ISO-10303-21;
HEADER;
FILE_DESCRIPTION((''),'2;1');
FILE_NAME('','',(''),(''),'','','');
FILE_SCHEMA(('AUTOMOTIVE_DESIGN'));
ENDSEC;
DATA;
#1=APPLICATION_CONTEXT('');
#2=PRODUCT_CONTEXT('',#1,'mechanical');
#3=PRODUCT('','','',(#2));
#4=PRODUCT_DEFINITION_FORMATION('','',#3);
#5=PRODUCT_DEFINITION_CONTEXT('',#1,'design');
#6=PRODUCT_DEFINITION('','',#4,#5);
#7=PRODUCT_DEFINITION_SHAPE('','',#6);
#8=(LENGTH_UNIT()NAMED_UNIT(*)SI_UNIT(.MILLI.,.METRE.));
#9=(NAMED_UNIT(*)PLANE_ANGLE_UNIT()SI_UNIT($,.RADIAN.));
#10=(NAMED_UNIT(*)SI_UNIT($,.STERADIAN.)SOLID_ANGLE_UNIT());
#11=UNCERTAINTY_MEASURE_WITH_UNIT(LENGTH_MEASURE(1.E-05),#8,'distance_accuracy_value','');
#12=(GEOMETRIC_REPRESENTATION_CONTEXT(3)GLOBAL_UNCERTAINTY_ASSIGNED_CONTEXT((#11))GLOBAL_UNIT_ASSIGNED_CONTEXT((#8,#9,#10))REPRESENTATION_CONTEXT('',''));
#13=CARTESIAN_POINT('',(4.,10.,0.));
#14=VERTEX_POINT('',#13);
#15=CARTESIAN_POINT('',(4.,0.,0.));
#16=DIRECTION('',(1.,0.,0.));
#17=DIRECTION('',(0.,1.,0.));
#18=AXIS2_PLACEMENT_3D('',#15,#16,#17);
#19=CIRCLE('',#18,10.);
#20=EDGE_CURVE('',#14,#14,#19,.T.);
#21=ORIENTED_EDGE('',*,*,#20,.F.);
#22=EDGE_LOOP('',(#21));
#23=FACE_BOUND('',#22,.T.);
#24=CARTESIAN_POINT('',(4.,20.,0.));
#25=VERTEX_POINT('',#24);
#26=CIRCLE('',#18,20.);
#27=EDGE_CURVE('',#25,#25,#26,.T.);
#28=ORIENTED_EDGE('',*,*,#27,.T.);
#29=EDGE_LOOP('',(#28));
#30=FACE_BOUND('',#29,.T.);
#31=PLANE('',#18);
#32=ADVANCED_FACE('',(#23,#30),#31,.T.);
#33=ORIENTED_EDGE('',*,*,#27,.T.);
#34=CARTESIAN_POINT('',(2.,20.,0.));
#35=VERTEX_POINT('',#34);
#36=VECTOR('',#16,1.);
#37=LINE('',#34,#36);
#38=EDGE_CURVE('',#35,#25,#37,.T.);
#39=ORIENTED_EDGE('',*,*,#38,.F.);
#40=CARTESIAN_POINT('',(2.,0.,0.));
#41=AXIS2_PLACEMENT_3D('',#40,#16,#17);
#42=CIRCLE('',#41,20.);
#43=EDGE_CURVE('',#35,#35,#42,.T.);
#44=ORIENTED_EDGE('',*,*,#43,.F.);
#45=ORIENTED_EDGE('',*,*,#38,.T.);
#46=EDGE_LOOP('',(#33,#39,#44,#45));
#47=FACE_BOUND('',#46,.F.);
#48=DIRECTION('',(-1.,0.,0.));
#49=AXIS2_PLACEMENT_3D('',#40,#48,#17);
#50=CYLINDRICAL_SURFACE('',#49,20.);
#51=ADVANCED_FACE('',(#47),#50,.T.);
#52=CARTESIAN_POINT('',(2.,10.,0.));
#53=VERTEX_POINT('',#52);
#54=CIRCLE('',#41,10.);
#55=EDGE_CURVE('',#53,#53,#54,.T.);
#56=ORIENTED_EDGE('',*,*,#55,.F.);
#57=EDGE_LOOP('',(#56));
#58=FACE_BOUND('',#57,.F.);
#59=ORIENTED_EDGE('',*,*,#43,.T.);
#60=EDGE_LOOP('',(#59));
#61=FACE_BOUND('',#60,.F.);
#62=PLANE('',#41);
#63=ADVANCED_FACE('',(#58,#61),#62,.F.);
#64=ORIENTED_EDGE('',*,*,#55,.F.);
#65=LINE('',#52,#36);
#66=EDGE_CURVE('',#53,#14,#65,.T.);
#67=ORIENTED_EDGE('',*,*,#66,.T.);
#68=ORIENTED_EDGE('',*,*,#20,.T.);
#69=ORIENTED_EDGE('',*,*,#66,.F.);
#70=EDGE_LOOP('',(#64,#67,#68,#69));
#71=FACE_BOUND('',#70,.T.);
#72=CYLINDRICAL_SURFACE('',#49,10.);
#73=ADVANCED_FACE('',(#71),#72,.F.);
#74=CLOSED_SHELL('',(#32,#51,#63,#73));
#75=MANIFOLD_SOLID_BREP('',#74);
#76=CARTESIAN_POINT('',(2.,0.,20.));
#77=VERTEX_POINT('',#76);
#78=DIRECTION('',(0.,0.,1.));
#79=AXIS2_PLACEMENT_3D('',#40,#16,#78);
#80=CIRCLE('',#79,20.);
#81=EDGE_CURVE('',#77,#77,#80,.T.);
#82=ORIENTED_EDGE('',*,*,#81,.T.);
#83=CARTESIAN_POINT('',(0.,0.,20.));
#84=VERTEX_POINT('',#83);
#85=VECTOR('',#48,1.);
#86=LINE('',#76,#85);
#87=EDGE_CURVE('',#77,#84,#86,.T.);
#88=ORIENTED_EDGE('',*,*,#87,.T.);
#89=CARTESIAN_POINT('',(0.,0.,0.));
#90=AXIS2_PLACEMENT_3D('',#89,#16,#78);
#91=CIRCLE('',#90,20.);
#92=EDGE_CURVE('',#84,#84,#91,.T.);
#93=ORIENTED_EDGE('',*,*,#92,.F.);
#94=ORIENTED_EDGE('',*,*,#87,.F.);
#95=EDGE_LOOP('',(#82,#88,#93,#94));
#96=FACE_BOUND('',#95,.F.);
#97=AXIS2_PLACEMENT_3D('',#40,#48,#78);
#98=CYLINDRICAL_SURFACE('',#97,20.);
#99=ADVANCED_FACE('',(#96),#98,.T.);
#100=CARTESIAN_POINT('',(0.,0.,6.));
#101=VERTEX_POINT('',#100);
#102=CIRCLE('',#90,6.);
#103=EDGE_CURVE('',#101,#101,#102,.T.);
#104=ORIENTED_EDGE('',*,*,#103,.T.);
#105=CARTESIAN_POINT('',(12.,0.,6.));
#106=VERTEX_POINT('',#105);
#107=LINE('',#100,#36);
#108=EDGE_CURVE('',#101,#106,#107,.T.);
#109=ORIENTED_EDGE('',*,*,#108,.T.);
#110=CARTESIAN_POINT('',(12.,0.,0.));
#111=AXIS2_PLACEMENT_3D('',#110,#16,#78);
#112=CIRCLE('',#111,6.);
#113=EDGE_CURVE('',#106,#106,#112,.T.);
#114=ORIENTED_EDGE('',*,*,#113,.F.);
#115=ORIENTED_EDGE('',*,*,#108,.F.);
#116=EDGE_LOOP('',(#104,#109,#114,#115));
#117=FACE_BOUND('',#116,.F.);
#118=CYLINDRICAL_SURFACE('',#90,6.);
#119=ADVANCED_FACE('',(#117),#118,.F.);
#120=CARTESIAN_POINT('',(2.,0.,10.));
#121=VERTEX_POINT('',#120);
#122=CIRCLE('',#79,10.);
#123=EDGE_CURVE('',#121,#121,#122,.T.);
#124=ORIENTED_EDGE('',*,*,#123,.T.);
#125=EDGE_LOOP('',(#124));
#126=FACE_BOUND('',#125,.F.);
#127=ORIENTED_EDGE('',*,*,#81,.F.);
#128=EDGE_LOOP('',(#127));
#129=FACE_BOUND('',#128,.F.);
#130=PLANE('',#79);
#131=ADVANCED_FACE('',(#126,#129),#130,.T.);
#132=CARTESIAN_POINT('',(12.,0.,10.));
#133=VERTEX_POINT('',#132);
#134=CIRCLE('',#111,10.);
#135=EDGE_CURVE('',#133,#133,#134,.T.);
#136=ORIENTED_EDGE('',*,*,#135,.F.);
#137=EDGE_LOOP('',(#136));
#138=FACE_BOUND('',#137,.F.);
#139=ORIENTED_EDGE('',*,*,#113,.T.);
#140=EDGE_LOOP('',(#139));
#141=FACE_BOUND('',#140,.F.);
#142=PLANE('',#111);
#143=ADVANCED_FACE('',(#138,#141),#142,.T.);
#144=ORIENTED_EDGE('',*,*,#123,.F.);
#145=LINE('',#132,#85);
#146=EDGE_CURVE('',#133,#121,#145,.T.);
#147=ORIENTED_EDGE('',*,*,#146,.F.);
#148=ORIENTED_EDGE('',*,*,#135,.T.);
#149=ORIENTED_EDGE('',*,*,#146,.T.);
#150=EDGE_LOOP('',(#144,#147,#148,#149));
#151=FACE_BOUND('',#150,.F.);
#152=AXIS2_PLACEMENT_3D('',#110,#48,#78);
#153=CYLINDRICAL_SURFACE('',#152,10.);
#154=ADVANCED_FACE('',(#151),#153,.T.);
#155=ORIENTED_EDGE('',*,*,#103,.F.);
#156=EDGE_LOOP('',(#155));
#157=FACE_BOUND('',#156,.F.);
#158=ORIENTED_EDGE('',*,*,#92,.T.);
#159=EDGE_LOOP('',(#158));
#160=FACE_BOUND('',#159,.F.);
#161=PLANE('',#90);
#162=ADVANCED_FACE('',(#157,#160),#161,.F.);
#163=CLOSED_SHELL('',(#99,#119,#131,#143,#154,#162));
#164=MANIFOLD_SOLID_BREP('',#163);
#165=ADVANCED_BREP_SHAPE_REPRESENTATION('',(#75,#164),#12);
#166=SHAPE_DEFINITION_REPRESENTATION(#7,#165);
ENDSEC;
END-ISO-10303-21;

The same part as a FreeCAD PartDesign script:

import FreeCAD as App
import Part
import Sketcher

V = App.Vector
Q = App.Units.Quantity

doc = App.newDocument("Part")
body = doc.addObject("PartDesign::Body", "Body")

sketch1 = body.newObject("Sketcher::SketchObject", "Sketch")
sketch1.AttachmentSupport = (doc.getObject("XZ_Plane"), [""])
sketch1.MapMode = "FlatFace"
sketch1.addGeometry([
    Part.LineSegment(V(0, 20, 0), V(0, 6, 0)),
    Part.LineSegment(V(0, 6, 0), V(12, 6, 0)),
    Part.LineSegment(V(12, 6, 0), V(12, 10, 0)),
    Part.LineSegment(V(12, 10, 0), V(2, 10, 0)),
    Part.LineSegment(V(2, 10, 0), V(2, 20, 0)),
    Part.LineSegment(V(2, 20, 0), V(0, 20, 0)),
], False)
sketch1.addConstraint([
    Sketcher.Constraint("Coincident", 0, 2, 1, 1),
    Sketcher.Constraint("Coincident", 1, 2, 2, 1),
    Sketcher.Constraint("Coincident", 2, 2, 3, 1),
    Sketcher.Constraint("Coincident", 3, 2, 4, 1),
    Sketcher.Constraint("Coincident", 4, 2, 5, 1),
    Sketcher.Constraint("Coincident", 5, 2, 0, 1),
    Sketcher.Constraint("Vertical", 0),
    Sketcher.Constraint("Horizontal", 1),
    Sketcher.Constraint("Vertical", 2),
    Sketcher.Constraint("Horizontal", 3),
    Sketcher.Constraint("Vertical", 4),
    Sketcher.Constraint("Horizontal", 5),
    Sketcher.Constraint("PointOnObject", 0, 2, -2),
    Sketcher.Constraint("Equal", 3, 4),
    Sketcher.Constraint("DistanceX", 1, 1, 1, 2, Q("12 mm")),
    Sketcher.Constraint("DistanceX", 3, 2, 3, 1, Q("10 mm")),
    Sketcher.Constraint("DistanceY", 0, 2, 0, 1, Q("14 mm")),
    Sketcher.Constraint("DistanceY", -1, 1, 0, 2, Q("6 mm")),
])
revolution = body.newObject("PartDesign::Revolution", "Revolution")
revolution.Profile = sketch1
revolution.ReferenceAxis = (sketch1, ["H_Axis"])
revolution.Angle = 360
body2 = doc.addObject("PartDesign::Body", "Body001")

sketch2 = body2.newObject("Sketcher::SketchObject", "Sketch001")
sketch2.AttachmentSupport = (doc.getObject("YZ_Plane001"), [""])
sketch2.MapMode = "FlatFace"
sketch2.AttachmentOffset = App.Placement(V(0, 0, 2), App.Rotation())
sketch2.addGeometry([
    Part.Circle(V(0, 0, 0), V(0, 0, 1), 20),
    Part.Circle(V(0, 0, 0), V(0, 0, 1), 10),
], False)
sketch2.addConstraint([
    Sketcher.Constraint("Coincident", 0, 3, -1, 1),
    Sketcher.Constraint("Coincident", 1, 3, -1, 1),
    Sketcher.Constraint("Diameter", 0, Q("40 mm")),
    Sketcher.Constraint("Diameter", 1, Q("20 mm")),
])
pad1 = body2.newObject("PartDesign::Pad", "Pad")
pad1.Profile = sketch2
pad1.Length = 2

doc.recompute()
